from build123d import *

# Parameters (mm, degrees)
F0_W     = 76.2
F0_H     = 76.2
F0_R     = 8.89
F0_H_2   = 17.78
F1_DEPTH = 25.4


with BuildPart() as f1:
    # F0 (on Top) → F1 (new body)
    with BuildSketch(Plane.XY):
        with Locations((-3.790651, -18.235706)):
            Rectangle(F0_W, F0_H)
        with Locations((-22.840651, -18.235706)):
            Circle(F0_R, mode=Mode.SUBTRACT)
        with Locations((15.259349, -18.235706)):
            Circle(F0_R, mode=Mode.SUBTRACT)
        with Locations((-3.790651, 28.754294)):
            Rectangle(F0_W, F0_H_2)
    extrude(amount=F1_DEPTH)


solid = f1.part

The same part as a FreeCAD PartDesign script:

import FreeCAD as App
import Part
import Sketcher
Q = App.Units.Quantity


def add_polygon(sketch, points):
    """Adds a closed chain of lines whose ends are joined by coincident constraints."""
    first, n = sketch.GeometryCount, len(points)
    for a, b in zip(points, points[1:] + points[:1]):
        sketch.addGeometry(Part.LineSegment(App.Vector(*a, 0), App.Vector(*b, 0)), False)
    for i in range(n):
        sketch.addConstraint(Sketcher.Constraint("Coincident", first + i, 2, first + (i + 1) % n, 1))

doc = App.newDocument("Part")
params = doc.addObject("Spreadsheet::Sheet", "Params")
for row, (alias, value) in enumerate([
    ("sketch1_diameter", "0.7 in"),
    ("sketch1_width", "3 in"),
    ("sketch1_height", "3.7 in"),
    ("pad1_length", "1 in"),
], start=1):
    params.set(f"A{row}", alias)
    params.set(f"B{row}", "=" + value)
    params.setAlias(f"B{row}", alias)

body = doc.addObject("PartDesign::Body", "Body")

sketch1 = body.newObject("Sketcher::SketchObject", "Sketch")
sketch1.AttachmentSupport = (doc.getObject("XY_Plane"), [""])
sketch1.MapMode = "FlatFace"
add_polygon(sketch1, [(-41.890651, -56.335706), (34.309349, -56.335706), (34.309349, 37.644294), (-41.890651, 37.644294)])
sketch1.addGeometry(Part.Circle(App.Vector(-22.840651, -18.235706, 0), App.Vector(0, 0, 1), 8.89), False)
sketch1.addGeometry(Part.Circle(App.Vector(15.259349, -18.235706, 0), App.Vector(0, 0, 1), 8.89), False)
sketch1.addConstraint(Sketcher.Constraint("Horizontal", 0))
sketch1.addConstraint(Sketcher.Constraint("Vertical", 1))
sketch1.addConstraint(Sketcher.Constraint("Horizontal", 2))
sketch1.addConstraint(Sketcher.Constraint("Vertical", 3))
sketch1.addConstraint(Sketcher.Constraint("Equal", 4, 5))
sketch1.addConstraint(Sketcher.Constraint("Horizontal", 4, 3, 5, 3))
sketch1.addConstraint(Sketcher.Constraint("Diameter", 4, Q("0.7 in")))
sketch1.addConstraint(Sketcher.Constraint("DistanceX", 0, 1, 0, 2, Q("3 in")))
sketch1.addConstraint(Sketcher.Constraint("DistanceY", 1, 1, 1, 2, Q("3.7 in")))
sketch1.addConstraint(Sketcher.Constraint("DistanceX", 4, 3, 5, 3, Q("1.5 in")))
sketch1.addConstraint(Sketcher.Constraint("DistanceY", 0, 2, 5, 3, Q("1.5 in")))
sketch1.addConstraint(Sketcher.Constraint("DistanceX", 5, 3, 0, 2, Q("0.75 in")))
sketch1.addConstraint(Sketcher.Constraint("DistanceX", 4, 3, -1, 1, 22.840651))
sketch1.addConstraint(Sketcher.Constraint("DistanceY", 4, 3, -1, 1, 18.235706))
sketch1.setExpression("Constraints[10]", "Params.sketch1_diameter")
sketch1.setExpression("Constraints[11]", "Params.sketch1_width")
sketch1.setExpression("Constraints[12]", "Params.sketch1_height")
pad1 = body.newObject("PartDesign::Pad", "Pad")
pad1.Profile = sketch1
pad1.setExpression("Length", "Params.pad1_length")

doc.recompute()
